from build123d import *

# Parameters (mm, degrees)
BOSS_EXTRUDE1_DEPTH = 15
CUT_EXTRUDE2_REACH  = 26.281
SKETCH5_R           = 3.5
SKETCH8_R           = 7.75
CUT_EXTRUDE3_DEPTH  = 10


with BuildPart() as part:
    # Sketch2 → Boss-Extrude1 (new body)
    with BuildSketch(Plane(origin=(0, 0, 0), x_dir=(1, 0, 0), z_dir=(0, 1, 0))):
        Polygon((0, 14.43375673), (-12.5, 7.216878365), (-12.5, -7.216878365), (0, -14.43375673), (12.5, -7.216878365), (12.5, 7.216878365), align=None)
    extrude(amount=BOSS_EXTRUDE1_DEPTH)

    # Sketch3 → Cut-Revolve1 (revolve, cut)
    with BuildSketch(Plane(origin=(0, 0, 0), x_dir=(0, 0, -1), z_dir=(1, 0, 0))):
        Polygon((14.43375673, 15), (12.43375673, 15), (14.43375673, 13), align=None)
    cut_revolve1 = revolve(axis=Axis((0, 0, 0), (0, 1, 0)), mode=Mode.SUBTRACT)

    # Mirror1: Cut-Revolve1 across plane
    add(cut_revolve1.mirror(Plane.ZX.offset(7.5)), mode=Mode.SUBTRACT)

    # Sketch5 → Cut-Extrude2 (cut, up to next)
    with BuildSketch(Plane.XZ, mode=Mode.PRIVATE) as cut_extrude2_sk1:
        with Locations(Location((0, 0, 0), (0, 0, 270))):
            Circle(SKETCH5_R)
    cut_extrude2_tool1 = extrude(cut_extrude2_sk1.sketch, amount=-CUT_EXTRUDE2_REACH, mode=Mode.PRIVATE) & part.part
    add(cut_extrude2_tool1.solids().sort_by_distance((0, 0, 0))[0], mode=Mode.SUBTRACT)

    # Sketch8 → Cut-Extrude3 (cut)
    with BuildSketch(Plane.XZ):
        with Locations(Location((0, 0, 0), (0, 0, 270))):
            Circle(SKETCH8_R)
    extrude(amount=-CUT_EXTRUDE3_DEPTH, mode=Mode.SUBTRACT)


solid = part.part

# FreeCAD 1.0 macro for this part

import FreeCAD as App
import Part
import Sketcher

V = App.Vector
Q = App.Units.Quantity

doc = App.newDocument("Part")
params = doc.addObject("Spreadsheet::Sheet", "Params")
for row, (alias, value) in enumerate([
    ("pad1_length", "15 mm"),
    ("sketch2_width", "2 mm"),
    ("groove_angle", "360 deg"),
    ("sketch3_diameter", "7 mm"),
    ("sketch4_diameter", "15.5 mm"),
    ("pocket2_length", "10 mm"),
], start=1):
    params.set(f"A{row}", alias)
    params.set(f"B{row}", "=" + value)
    params.setAlias(f"B{row}", alias)

body = doc.addObject("PartDesign::Body", "Body")

# Sketch on XZ plane
sketch1 = doc.addObject("Sketcher::SketchObject", "Sketch")
body.addObject(sketch1)
sketch1.AttachmentSupport = (doc.XZ_Plane, [""])
sketch1.MapMode = "FlatFace"
sketch1.addGeometry([
    Part.LineSegment(V(0, -14, 0), V(-12, -7, 0)),  # 0
    Part.LineSegment(V(-12, -7, 0), V(-12, 7, 0)),  # 1
    Part.LineSegment(V(-12, 7, 0), V(0, 14, 0)),  # 2
    Part.LineSegment(V(0, 14, 0), V(12, 7, 0)),  # 3
    Part.LineSegment(V(12, 7, 0), V(12, -7, 0)),  # 4
    Part.LineSegment(V(12, -7, 0), V(0, -14, 0)),  # 5
], False)
sketch1.addConstraint([
    Sketcher.Constraint("Coincident", 0, 2, 1, 1),
    Sketcher.Constraint("Coincident", 1, 2, 2, 1),
    Sketcher.Constraint("Coincident", 2, 2, 3, 1),
    Sketcher.Constraint("Coincident", 3, 2, 4, 1),
    Sketcher.Constraint("Coincident", 4, 2, 5, 1),
    Sketcher.Constraint("Coincident", 5, 2, 0, 1),
    Sketcher.Constraint("Vertical", 1),
    Sketcher.Constraint("Vertical", 4),
    Sketcher.Constraint("Symmetric", 0, 2, 3, 2, -1, 1),
    Sketcher.Constraint("Symmetric", 2, 2, 5, 2, -1, 1),
    Sketcher.Constraint("PointOnObject", 2, 2, -2),
    Sketcher.Constraint("Parallel", 2, 5),
    Sketcher.Constraint("Horizontal", 1, 2, 3, 2),
    Sketcher.Constraint("Angle", 0, Q("150 deg")),
    Sketcher.Constraint("DistanceX", 1, 2, 3, 2, Q("25 mm")),
    Sketcher.Constraint("DistanceY", 1, 1, 1, 2, Q("14.433757 mm")),
])
pad1 = doc.addObject("PartDesign::Pad", "Pad")
body.addObject(pad1)
pad1.Profile = sketch1
pad1.setExpression("Length", "Params.pad1_length")
pad1.Reversed = True

# Sketch on YZ plane
sketch2 = doc.addObject("Sketcher::SketchObject", "Sketch001")
body.addObject(sketch2)
sketch2.AttachmentSupport = (doc.YZ_Plane, [""])
sketch2.MapMode = "FlatFace"
sketch2.addGeometry([
    Part.LineSegment(V(15, -14.4, 0), V(15, -12.4, 0)),
    Part.LineSegment(V(15, -12.4, 0), V(13, -14.4, 0)),
    Part.LineSegment(V(13, -14.4, 0), V(15, -14.4, 0)),
], False)
sketch2.addConstraint([
    Sketcher.Constraint("Coincident", 0, 2, 1, 1),
    Sketcher.Constraint("Coincident", 1, 2, 2, 1),
    Sketcher.Constraint("Coincident", 2, 2, 0, 1),
    Sketcher.Constraint("Vertical", 0),
    Sketcher.Constraint("Horizontal", 2),
    Sketcher.Constraint("Equal", 2, 0),
    Sketcher.Constraint("DistanceX", 2, 1, 2, 2, Q("2 mm")),
    Sketcher.Constraint("DistanceX", -1, 1, 0, 2, Q("15 mm")),
    Sketcher.Constraint("DistanceY", 0, 2, -1, 1, Q("12.433757 mm")),
])
sketch2.setExpression("Constraints[6]", "Params.sketch2_width")
groove = doc.addObject("PartDesign::Groove", "Groove")
body.addObject(groove)
groove.Profile = sketch2
groove.ReferenceAxis = (sketch2, ["H_Axis"])
groove.setExpression("Angle", "Params.groove_angle")
doc.recompute()

datumplane = doc.addObject("PartDesign::Plane", "DatumPlane")
body.addObject(datumplane)
datumplane.AttachmentSupport = (doc.XZ_Plane, [""])
datumplane.MapMode = "FlatFace"
datumplane.AttachmentOffset = App.Placement(V(0, 0, -7.5), App.Rotation())
mirrored = doc.addObject("PartDesign::Mirrored", "Mirrored")
body.addObject(mirrored)
mirrored.Originals = [groove]
mirrored.MirrorPlane = (datumplane, [""])
body.Tip = mirrored

# Sketch on XZ plane
sketch3 = doc.addObject("Sketcher::SketchObject", "Sketch002")
body.addObject(sketch3)
sketch3.AttachmentSupport = (doc.XZ_Plane, [""])
sketch3.MapMode = "FlatFace"
sketch3.addGeometry(Part.Circle(V(0, 0, 0), V(0, 0, 1), 3.5), False)
sketch3.addConstraint([
    Sketcher.Constraint("Coincident", 0, 3, -1, 1),
    Sketcher.Constraint("Diameter", 0, Q("7 mm")),
])
sketch3.setExpression("Constraints[1]", "Params.sketch3_diameter")
pocket1 = doc.addObject("PartDesign::Pocket", "Pocket")
body.addObject(pocket1)
pocket1.Profile = sketch3
pocket1.Type = "UpToFirst"

# Sketch on XZ plane
sketch4 = doc.addObject("Sketcher::SketchObject", "Sketch003")
body.addObject(sketch4)
sketch4.AttachmentSupport = (doc.XZ_Plane, [""])
sketch4.MapMode = "FlatFace"
sketch4.addGeometry(Part.Circle(V(0, 0, 0), V(0, 0, 1), 8), False)
sketch4.addConstraint([
    Sketcher.Constraint("Coincident", 0, 3, -1, 1),
    Sketcher.Constraint("Diameter", 0, Q("15.5 mm")),
])
sketch4.setExpression("Constraints[1]", "Params.sketch4_diameter")
pocket2 = doc.addObject("PartDesign::Pocket", "Pocket001")
body.addObject(pocket2)
pocket2.Profile = sketch4
pocket2.setExpression("Length", "Params.pocket2_length")

doc.recompute()
